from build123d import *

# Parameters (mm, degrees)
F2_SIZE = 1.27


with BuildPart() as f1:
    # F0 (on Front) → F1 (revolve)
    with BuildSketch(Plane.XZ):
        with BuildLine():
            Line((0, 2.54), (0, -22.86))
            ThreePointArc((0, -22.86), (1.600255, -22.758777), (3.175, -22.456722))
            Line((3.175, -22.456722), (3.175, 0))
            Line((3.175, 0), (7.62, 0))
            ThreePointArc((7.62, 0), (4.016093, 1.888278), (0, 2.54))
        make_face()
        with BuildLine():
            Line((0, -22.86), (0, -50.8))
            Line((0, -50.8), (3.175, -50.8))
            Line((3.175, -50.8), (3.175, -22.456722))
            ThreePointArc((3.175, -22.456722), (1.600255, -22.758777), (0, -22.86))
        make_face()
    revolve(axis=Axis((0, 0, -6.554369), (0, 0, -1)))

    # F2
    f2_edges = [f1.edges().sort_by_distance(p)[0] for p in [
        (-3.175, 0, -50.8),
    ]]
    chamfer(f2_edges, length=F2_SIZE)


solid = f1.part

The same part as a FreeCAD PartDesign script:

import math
import FreeCAD as App
import Part
import Sketcher
from FreeCAD import Vector
Q = App.Units.Quantity


def edges_at(feature, points):
    """Names of the edges that pass closest to the given points."""
    edges = feature.Shape.Edges
    near = lambda p: min(range(len(edges)), key=lambda i: edges[i].distToShape(Part.Vertex(*p))[0])
    return sorted({f"Edge{near(p) + 1}" for p in points})

doc = App.newDocument("Part")
body = doc.addObject("PartDesign::Body", "Body")

# Sketch on XZ plane
sketch1 = body.newObject("Sketcher::SketchObject", "Sketch")
sketch1.AttachmentSupport = (doc.getObject("XZ_Plane"), [""])
sketch1.MapMode = "FlatFace"
sketch1.addGeometry(Part.LineSegment(Vector(0, 2.5, 0), Vector(0, -50.8, 0)), False)
sketch1.addGeometry(Part.LineSegment(Vector(0, -50.8, 0), Vector(3.2, -50.8, 0)), False)
sketch1.addGeometry(Part.LineSegment(Vector(3.2, -50.8, 0), Vector(3.2, 0, 0)), False)
sketch1.addGeometry(Part.LineSegment(Vector(3.2, 0, 0), Vector(7.6, 0, 0)), False)
sketch1.addGeometry(Part.ArcOfCircle(Part.Circle(Vector(0, -10.2, 0), Vector(0, 0, 1), 12.7), math.radians(53), math.radians(90)), False)
sketch1.addConstraint(Sketcher.Constraint("Coincident", 0, 2, 1, 1))
sketch1.addConstraint(Sketcher.Constraint("Coincident", 1, 2, 2, 1))
sketch1.addConstraint(Sketcher.Constraint("Coincident", 2, 2, 3, 1))
sketch1.addConstraint(Sketcher.Constraint("Coincident", 3, 2, 4, 1))
sketch1.addConstraint(Sketcher.Constraint("Coincident", 4, 2, 0, 1))
sketch1.addConstraint(Sketcher.Constraint("Vertical", 0))
sketch1.addConstraint(Sketcher.Constraint("Horizontal", 1))
sketch1.addConstraint(Sketcher.Constraint("Vertical", 2))
sketch1.addConstraint(Sketcher.Constraint("Horizontal", 3))
sketch1.addConstraint(Sketcher.Constraint("PointOnObject", 4, 3, -2))
sketch1.addConstraint(Sketcher.Constraint("PointOnObject", 0, 2, -2))
sketch1.addConstraint(Sketcher.Constraint("PointOnObject", 2, 2, -1))
sketch1.addConstraint(Sketcher.Constraint("Radius", 4, Q("0.4999998 in")))
sketch1.addConstraint(Sketcher.Constraint("DistanceY", 2, 1, 2, 2, Q("2 in")))
sketch1.addConstraint(Sketcher.Constraint("DistanceY", 0, 2, 0, 1, Q("2.1 in")))
sketch1.addConstraint(Sketcher.Constraint("DistanceX", 1, 1, 1, 2, Q("0.125 in")))
revolution = body.newObject("PartDesign::Revolution", "Revolution")
revolution.Profile = sketch1
revolution.ReferenceAxis = (sketch1, ["V_Axis"])
revolution.Angle = 360
doc.recompute()

chamfer = body.newObject("PartDesign::Chamfer", "Chamfer")
chamfer.Base = (revolution, edges_at(revolution, [(-3.175, 0, -50.8)]))
chamfer.Size = Q("0.05 in")

doc.recompute()
